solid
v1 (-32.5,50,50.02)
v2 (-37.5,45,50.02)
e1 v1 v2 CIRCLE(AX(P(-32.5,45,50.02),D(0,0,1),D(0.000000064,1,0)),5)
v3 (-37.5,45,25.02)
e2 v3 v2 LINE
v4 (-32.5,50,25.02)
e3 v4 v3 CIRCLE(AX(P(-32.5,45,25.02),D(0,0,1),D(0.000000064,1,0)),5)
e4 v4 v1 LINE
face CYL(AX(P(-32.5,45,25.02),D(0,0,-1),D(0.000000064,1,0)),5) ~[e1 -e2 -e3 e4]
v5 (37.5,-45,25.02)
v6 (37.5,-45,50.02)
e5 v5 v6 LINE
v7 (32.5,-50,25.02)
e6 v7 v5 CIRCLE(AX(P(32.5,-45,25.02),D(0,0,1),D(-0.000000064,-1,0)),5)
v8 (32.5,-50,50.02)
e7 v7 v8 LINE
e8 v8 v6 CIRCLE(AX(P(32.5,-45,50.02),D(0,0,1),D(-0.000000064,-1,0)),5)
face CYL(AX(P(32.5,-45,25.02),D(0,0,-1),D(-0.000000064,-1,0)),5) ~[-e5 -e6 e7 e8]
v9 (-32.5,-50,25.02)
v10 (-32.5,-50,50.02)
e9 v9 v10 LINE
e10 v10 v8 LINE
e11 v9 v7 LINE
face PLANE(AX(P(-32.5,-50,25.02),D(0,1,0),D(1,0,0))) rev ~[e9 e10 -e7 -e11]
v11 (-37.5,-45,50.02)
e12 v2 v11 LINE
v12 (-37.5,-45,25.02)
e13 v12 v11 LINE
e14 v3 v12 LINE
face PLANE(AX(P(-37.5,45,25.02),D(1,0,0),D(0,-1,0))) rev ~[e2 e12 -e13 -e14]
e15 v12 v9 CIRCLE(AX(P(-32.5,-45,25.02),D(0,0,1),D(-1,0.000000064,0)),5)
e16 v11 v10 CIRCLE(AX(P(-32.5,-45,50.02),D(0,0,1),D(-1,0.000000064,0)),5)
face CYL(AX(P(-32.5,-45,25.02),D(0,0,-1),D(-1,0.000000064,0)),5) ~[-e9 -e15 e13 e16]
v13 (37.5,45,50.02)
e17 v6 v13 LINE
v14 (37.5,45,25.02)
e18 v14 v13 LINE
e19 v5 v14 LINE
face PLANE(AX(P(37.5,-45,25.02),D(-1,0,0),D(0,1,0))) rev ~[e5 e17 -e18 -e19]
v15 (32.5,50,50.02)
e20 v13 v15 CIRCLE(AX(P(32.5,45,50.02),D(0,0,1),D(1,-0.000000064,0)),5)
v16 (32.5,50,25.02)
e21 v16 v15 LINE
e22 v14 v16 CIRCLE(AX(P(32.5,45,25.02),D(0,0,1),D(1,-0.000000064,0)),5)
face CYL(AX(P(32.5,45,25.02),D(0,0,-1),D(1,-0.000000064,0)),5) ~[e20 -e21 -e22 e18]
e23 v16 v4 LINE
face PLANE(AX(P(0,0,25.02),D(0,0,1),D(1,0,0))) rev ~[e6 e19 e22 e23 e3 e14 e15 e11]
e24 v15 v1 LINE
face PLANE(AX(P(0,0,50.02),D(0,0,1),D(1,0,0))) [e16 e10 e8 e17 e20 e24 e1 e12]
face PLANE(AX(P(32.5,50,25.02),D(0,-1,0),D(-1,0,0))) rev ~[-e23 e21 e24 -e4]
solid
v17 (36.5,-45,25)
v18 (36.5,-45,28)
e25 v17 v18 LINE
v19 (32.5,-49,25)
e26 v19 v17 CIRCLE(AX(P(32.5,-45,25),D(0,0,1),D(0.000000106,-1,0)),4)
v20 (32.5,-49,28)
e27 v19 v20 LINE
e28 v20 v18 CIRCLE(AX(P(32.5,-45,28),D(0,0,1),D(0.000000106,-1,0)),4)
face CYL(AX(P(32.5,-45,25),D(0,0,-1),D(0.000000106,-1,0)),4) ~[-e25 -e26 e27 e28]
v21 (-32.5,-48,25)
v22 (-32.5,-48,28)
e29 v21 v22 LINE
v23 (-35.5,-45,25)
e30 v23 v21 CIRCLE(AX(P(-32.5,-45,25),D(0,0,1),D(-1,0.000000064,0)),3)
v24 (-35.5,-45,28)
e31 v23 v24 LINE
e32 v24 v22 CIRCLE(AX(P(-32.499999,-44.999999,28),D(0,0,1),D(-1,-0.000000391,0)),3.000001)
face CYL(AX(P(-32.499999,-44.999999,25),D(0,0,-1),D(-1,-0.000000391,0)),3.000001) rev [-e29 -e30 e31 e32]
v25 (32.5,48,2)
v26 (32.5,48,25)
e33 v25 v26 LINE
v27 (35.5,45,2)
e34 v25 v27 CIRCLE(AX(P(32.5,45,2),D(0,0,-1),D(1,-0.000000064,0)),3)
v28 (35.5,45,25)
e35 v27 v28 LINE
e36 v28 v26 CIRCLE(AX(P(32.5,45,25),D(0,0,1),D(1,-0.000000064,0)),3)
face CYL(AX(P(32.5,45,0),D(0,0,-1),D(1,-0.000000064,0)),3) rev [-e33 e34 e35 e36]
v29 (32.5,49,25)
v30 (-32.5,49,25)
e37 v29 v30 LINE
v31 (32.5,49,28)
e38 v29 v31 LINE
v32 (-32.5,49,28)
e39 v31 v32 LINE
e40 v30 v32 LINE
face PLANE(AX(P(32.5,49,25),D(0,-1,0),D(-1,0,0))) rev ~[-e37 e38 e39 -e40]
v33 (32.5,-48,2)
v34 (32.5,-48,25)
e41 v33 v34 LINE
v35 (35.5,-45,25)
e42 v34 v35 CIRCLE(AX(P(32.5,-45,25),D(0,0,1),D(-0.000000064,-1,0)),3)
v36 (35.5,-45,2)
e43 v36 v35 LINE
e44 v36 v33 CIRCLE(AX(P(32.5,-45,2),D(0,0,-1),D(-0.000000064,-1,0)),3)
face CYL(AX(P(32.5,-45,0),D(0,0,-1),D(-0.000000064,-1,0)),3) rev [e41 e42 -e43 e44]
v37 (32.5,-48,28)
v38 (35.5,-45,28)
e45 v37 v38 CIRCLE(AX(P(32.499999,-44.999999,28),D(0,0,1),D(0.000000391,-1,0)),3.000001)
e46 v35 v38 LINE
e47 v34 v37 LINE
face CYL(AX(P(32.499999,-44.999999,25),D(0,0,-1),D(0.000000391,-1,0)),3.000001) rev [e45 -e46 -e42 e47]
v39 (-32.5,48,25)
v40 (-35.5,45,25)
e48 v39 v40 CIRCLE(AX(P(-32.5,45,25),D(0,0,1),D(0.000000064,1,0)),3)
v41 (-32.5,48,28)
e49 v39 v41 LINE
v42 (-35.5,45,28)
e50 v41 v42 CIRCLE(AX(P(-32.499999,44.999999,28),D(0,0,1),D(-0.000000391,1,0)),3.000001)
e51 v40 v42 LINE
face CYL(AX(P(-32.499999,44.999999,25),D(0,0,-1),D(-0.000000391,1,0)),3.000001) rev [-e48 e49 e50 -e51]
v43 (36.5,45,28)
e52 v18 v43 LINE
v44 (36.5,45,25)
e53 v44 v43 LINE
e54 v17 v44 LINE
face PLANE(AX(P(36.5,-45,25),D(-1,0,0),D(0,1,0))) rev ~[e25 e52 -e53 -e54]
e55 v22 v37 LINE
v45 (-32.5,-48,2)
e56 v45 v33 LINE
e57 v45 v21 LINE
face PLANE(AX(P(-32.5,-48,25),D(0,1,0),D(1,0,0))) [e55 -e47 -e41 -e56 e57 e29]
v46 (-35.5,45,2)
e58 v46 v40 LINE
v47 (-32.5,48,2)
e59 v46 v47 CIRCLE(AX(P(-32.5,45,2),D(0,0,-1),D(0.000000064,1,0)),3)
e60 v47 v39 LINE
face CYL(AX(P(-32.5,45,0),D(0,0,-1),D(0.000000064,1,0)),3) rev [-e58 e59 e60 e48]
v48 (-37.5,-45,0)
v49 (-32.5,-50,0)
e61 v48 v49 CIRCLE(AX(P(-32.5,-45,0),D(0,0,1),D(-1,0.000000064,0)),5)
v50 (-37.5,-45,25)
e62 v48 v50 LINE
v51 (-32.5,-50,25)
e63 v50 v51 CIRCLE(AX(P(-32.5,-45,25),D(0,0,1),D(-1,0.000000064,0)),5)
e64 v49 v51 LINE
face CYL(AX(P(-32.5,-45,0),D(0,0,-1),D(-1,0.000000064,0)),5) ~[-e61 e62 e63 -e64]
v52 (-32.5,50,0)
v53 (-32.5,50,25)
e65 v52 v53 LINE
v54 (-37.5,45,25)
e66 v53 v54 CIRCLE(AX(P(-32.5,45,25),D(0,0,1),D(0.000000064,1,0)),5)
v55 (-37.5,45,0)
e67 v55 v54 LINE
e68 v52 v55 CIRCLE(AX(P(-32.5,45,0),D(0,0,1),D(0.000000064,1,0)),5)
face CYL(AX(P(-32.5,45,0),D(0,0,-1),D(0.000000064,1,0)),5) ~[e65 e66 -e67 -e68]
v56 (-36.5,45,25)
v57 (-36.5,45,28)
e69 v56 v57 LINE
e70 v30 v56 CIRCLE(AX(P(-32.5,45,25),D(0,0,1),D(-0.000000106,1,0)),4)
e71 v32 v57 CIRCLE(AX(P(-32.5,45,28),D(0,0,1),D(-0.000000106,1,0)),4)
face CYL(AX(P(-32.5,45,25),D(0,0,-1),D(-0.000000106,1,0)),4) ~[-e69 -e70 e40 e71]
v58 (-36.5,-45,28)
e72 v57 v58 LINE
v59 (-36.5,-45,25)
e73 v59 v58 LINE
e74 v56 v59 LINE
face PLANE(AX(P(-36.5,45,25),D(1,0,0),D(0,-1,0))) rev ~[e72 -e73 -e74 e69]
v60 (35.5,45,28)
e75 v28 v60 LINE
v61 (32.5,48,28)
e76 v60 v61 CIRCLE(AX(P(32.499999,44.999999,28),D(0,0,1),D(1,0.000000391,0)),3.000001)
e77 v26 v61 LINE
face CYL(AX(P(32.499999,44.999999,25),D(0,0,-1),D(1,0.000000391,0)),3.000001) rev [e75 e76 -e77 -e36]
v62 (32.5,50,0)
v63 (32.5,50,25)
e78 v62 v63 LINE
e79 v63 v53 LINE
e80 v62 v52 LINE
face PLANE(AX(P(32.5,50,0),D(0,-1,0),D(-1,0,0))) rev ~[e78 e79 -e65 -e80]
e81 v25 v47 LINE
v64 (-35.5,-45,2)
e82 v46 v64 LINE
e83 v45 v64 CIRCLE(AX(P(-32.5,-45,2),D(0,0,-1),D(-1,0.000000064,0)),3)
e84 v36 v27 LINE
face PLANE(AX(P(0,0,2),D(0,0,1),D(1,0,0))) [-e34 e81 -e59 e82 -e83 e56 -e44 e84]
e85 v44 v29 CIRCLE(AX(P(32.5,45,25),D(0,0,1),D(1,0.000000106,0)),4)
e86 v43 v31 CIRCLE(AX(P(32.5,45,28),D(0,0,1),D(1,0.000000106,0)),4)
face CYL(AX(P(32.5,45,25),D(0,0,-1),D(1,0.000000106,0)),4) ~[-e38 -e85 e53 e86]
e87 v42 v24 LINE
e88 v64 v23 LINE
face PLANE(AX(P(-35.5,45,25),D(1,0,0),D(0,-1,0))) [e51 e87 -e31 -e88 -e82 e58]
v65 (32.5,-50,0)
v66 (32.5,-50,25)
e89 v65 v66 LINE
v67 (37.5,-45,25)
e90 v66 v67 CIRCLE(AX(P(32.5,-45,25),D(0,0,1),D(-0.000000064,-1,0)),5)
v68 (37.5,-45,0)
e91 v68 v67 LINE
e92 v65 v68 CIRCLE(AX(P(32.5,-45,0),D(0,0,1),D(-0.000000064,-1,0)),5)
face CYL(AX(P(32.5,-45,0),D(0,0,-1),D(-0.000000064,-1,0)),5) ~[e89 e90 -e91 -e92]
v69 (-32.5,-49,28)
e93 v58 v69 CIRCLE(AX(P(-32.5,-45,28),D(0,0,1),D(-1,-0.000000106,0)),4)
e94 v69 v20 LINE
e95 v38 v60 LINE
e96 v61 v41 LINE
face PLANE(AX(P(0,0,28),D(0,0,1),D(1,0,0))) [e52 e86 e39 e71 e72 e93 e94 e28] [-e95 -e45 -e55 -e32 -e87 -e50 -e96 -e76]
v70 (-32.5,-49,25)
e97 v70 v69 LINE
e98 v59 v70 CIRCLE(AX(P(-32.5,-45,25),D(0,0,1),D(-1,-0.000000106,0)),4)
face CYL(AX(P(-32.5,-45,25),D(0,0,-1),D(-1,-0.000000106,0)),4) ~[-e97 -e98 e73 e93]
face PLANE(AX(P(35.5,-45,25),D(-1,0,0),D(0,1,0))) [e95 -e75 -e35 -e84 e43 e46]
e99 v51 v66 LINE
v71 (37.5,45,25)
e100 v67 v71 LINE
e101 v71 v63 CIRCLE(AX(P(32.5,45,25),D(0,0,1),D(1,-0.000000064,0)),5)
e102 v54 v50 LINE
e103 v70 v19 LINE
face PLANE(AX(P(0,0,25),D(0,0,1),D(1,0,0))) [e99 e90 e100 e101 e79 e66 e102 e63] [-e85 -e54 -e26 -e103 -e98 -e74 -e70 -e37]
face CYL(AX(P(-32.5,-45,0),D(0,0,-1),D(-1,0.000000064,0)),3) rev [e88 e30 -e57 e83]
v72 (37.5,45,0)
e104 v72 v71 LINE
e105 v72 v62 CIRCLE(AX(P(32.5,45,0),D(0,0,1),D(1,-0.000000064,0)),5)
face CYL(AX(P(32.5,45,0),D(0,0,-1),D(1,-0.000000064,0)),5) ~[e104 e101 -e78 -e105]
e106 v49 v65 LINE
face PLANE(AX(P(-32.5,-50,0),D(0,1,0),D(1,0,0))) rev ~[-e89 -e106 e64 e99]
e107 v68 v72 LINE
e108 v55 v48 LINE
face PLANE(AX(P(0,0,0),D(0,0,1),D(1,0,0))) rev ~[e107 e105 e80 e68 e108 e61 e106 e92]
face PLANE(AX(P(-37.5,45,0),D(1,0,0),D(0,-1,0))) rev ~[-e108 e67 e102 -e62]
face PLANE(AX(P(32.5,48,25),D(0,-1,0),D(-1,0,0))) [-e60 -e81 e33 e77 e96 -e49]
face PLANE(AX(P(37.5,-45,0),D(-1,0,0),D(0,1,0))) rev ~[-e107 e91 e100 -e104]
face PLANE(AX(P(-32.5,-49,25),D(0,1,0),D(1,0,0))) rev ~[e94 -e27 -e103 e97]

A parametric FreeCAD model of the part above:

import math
import FreeCAD as App
import Part
import Sketcher

V = App.Vector
Q = App.Units.Quantity


def faces_at(feature, points):
    """Names of the faces that lie closest to the given points."""
    faces = feature.Shape.Faces
    near = lambda p: min(range(len(faces)), key=lambda i: faces[i].distToShape(Part.Vertex(*p))[0])
    return sorted({f"Face{near(p) + 1}" for p in points})

doc = App.newDocument("Part")
body = doc.addObject("PartDesign::Body", "Body")

# Sketch on XY plane
sketch1 = body.newObject("Sketcher::SketchObject", "Sketch")
sketch1.AttachmentSupport = (doc.getObject("XY_Plane"), [""])
sketch1.MapMode = "FlatFace"
sketch1.addGeometry(Part.LineSegment(V(-37.5, 45, 0), V(-37.5, -45, 0)), False)
sketch1.addGeometry(Part.ArcOfCircle(Part.Circle(V(-32.5, -45, 0), V(0, 0, 1), 5), math.radians(180), math.radians(270)), False)
sketch1.addGeometry(Part.LineSegment(V(-32.5, -50, 0), V(32.5, -50, 0)), False)
sketch1.addGeometry(Part.ArcOfCircle(Part.Circle(V(32.5, -45, 0), V(0, 0, 1), 5), math.radians(-90), math.radians(0)), False)
sketch1.addGeometry(Part.LineSegment(V(37.5, -45, 0), V(37.5, 45, 0)), False)
sketch1.addGeometry(Part.ArcOfCircle(Part.Circle(V(32.5, 45, 0), V(0, 0, 1), 5), math.radians(0), math.radians(90)), False)
sketch1.addGeometry(Part.LineSegment(V(32.5, 50, 0), V(-32.5, 50, 0)), False)
sketch1.addGeometry(Part.ArcOfCircle(Part.Circle(V(-32.5, 45, 0), V(0, 0, 1), 5), math.radians(90), math.radians(180)), False)
sketch1.addConstraint(Sketcher.Constraint("Tangent", 0, 2, 1, 1))
sketch1.addConstraint(Sketcher.Constraint("Tangent", 1, 2, 2, 1))
sketch1.addConstraint(Sketcher.Constraint("Tangent", 2, 2, 3, 1))
sketch1.addConstraint(Sketcher.Constraint("Tangent", 3, 2, 4, 1))
sketch1.addConstraint(Sketcher.Constraint("Tangent", 4, 2, 5, 1))
sketch1.addConstraint(Sketcher.Constraint("Tangent", 5, 2, 6, 1))
sketch1.addConstraint(Sketcher.Constraint("Tangent", 6, 2, 7, 1))
sketch1.addConstraint(Sketcher.Constraint("Tangent", 7, 2, 0, 1))
sketch1.addConstraint(Sketcher.Constraint("Vertical", 0))
sketch1.addConstraint(Sketcher.Constraint("Horizontal", 2))
sketch1.addConstraint(Sketcher.Constraint("Vertical", 4))
sketch1.addConstraint(Sketcher.Constraint("Horizontal", 6))
sketch1.addConstraint(Sketcher.Constraint("Equal", 1, 3))
sketch1.addConstraint(Sketcher.Constraint("Equal", 3, 5))
sketch1.addConstraint(Sketcher.Constraint("Equal", 5, 7))
sketch1.addConstraint(Sketcher.Constraint("Symmetric", 1, 3, 5, 3, -1, 1))
sketch1.addConstraint(Sketcher.Constraint("Radius", 1, Q("5 mm")))
sketch1.addConstraint(Sketcher.Constraint("DistanceX", 2, 1, 2, 2, Q("65 mm")))
sketch1.addConstraint(Sketcher.Constraint("DistanceY", 0, 2, 0, 1, Q("90 mm")))
pad1 = body.newObject("PartDesign::Pad", "Pad")
pad1.Profile = sketch1
pad1.Length = 25
doc.recompute()

thickness = body.newObject("PartDesign::Thickness", "Thickness")
thickness.Base = (pad1, faces_at(pad1, [(0, 0, 25)]))
thickness.Value = 2
thickness.Reversed = True
thickness.Join = "Arc"

# Sketch on XY plane
sketch2 = body.newObject("Sketcher::SketchObject", "Sketch001")
sketch2.AttachmentSupport = (doc.getObject("XY_Plane"), [""])
sketch2.MapMode = "FlatFace"
sketch2.AttachmentOffset = App.Placement(V(0, 0, 25), App.Rotation())
sketch2.addGeometry(Part.LineSegment(V(-36.5, 45, 0), V(-36.5, -45, 0)), False)
sketch2.addGeometry(Part.ArcOfCircle(Part.Circle(V(-32.5, -45, 0), V(0, 0, 1), 4), math.radians(-180), math.radians(-90)), False)
sketch2.addGeometry(Part.LineSegment(V(-32.5, -49, 0), V(32.5, -49, 0)), False)
sketch2.addGeometry(Part.ArcOfCircle(Part.Circle(V(32.5, -45, 0), V(0, 0, 1), 4), math.radians(-90), math.radians(0)), False)
sketch2.addGeometry(Part.LineSegment(V(36.5, -45, 0), V(36.5, 45, 0)), False)
sketch2.addGeometry(Part.ArcOfCircle(Part.Circle(V(32.5, 45, 0), V(0, 0, 1), 4), math.radians(0), math.radians(90)), False)
sketch2.addGeometry(Part.LineSegment(V(32.5, 49, 0), V(-32.5, 49, 0)), False)
sketch2.addGeometry(Part.ArcOfCircle(Part.Circle(V(-32.5, 45, 0), V(0, 0, 1), 4), math.radians(90), math.radians(180)), False)
sketch2.addGeometry(Part.LineSegment(V(-35.5, -45, 0), V(-35.5, 45, 0)), False)
sketch2.addGeometry(Part.ArcOfCircle(Part.Circle(V(-32.5, 45, 0), V(0, 0, 1), 3), math.radians(90), math.radians(180)), False)
sketch2.addGeometry(Part.LineSegment(V(-32.5, 48, 0), V(32.5, 48, 0)), False)
sketch2.addGeometry(Part.ArcOfCircle(Part.Circle(V(32.5, 45, 0), V(0, 0, 1), 3), math.radians(0), math.radians(90)), False)
sketch2.addGeometry(Part.LineSegment(V(35.5, 45, 0), V(35.5, -45, 0)), False)
sketch2.addGeometry(Part.ArcOfCircle(Part.Circle(V(32.5, -45, 0), V(0, 0, 1), 3), math.radians(-90), math.radians(0)), False)
sketch2.addGeometry(Part.LineSegment(V(32.5, -48, 0), V(-32.5, -48, 0)), False)
sketch2.addGeometry(Part.ArcOfCircle(Part.Circle(V(-32.5, -45, 0), V(0, 0, 1), 3), math.radians(-180), math.radians(-90)), False)
sketch2.addConstraint(Sketcher.Constraint("Tangent", 0, 2, 1, 1))
sketch2.addConstraint(Sketcher.Constraint("Tangent", 1, 2, 2, 1))
sketch2.addConstraint(Sketcher.Constraint("Tangent", 2, 2, 3, 1))
sketch2.addConstraint(Sketcher.Constraint("Tangent", 3, 2, 4, 1))
sketch2.addConstraint(Sketcher.Constraint("Tangent", 4, 2, 5, 1))
sketch2.addConstraint(Sketcher.Constraint("Tangent", 5, 2, 6, 1))
sketch2.addConstraint(Sketcher.Constraint("Tangent", 6, 2, 7, 1))
sketch2.addConstraint(Sketcher.Constraint("Tangent", 7, 2, 0, 1))
sketch2.addConstraint(Sketcher.Constraint("Tangent", 8, 2, 9, 2))
sketch2.addConstraint(Sketcher.Constraint("Tangent", 9, 1, 10, 1))
sketch2.addConstraint(Sketcher.Constraint("Tangent", 10, 2, 11, 2))
sketch2.addConstraint(Sketcher.Constraint("Tangent", 11, 1, 12, 1))
sketch2.addConstraint(Sketcher.Constraint("Tangent", 12, 2, 13, 2))
sketch2.addConstraint(Sketcher.Constraint("Tangent", 13, 1, 14, 1))
sketch2.addConstraint(Sketcher.Constraint("Tangent", 14, 2, 15, 2))
sketch2.addConstraint(Sketcher.Constraint("Tangent", 15, 1, 8, 1))
sketch2.addConstraint(Sketcher.Constraint("Vertical", 0))
sketch2.addConstraint(Sketcher.Constraint("Horizontal", 2))
sketch2.addConstraint(Sketcher.Constraint("Vertical", 4))
sketch2.addConstraint(Sketcher.Constraint("Horizontal", 6))
sketch2.addConstraint(Sketcher.Constraint("Vertical", 8))
sketch2.addConstraint(Sketcher.Constraint("Horizontal", 10))
sketch2.addConstraint(Sketcher.Constraint("Vertical", 12))
sketch2.addConstraint(Sketcher.Constraint("Horizontal", 14))
sketch2.addConstraint(Sketcher.Constraint("Coincident", 9, 3, 7, 3))
sketch2.addConstraint(Sketcher.Constraint("Coincident", 11, 3, 5, 3))
sketch2.addConstraint(Sketcher.Constraint("Coincident", 13, 3, 3, 3))
sketch2.addConstraint(Sketcher.Constraint("Equal", 1, 3))
sketch2.addConstraint(Sketcher.Constraint("Equal", 3, 5))
sketch2.addConstraint(Sketcher.Constraint("Equal", 5, 7))
sketch2.addConstraint(Sketcher.Constraint("Equal", 13, 15))
sketch2.addConstraint(Sketcher.Constraint("Symmetric", 1, 3, 5, 3, -1, 1))
sketch2.addConstraint(Sketcher.Constraint("Radius", 1, Q("4 mm")))
sketch2.addConstraint(Sketcher.Constraint("Radius", 9, Q("3.000001 mm")))
sketch2.addConstraint(Sketcher.Constraint("DistanceX", 2, 1, 2, 2, Q("65 mm")))
sketch2.addConstraint(Sketcher.Constraint("DistanceY", 0, 2, 0, 1, Q("90 mm")))
pad2 = body.newObject("PartDesign::Pad", "Pad001")
pad2.Profile = sketch2
pad2.Length = 3
body2 = doc.addObject("PartDesign::Body", "Body001")

# Sketch on XY plane
sketch3 = body2.newObject("Sketcher::SketchObject", "Sketch002")
sketch3.AttachmentSupport = (doc.getObject("XY_Plane001"), [""])
sketch3.MapMode = "FlatFace"
sketch3.AttachmentOffset = App.Placement(V(0, 0, 25.02), App.Rotation())
sketch3.addGeometry(Part.LineSegment(V(-37.5, 45, 0), V(-37.5, -45, 0)), False)
sketch3.addGeometry(Part.ArcOfCircle(Part.Circle(V(-32.5, -45, 0), V(0, 0, 1), 5), math.radians(180), math.radians(270)), False)
sketch3.addGeometry(Part.LineSegment(V(-32.5, -50, 0), V(32.5, -50, 0)), False)
sketch3.addGeometry(Part.ArcOfCircle(Part.Circle(V(32.5, -45, 0), V(0, 0, 1), 5), math.radians(-90), math.radians(0)), False)
sketch3.addGeometry(Part.LineSegment(V(37.5, -45, 0), V(37.5, 45, 0)), False)
sketch3.addGeometry(Part.ArcOfCircle(Part.Circle(V(32.5, 45, 0), V(0, 0, 1), 5), math.radians(0), math.radians(90)), False)
sketch3.addGeometry(Part.LineSegment(V(32.5, 50, 0), V(-32.5, 50, 0)), False)
sketch3.addGeometry(Part.ArcOfCircle(Part.Circle(V(-32.5, 45, 0), V(0, 0, 1), 5), math.radians(90), math.radians(180)), False)
sketch3.addConstraint(Sketcher.Constraint("Tangent", 0, 2, 1, 1))
sketch3.addConstraint(Sketcher.Constraint("Tangent", 1, 2, 2, 1))
sketch3.addConstraint(Sketcher.Constraint("Tangent", 2, 2, 3, 1))
sketch3.addConstraint(Sketcher.Constraint("Tangent", 3, 2, 4, 1))
sketch3.addConstraint(Sketcher.Constraint("Tangent", 4, 2, 5, 1))
sketch3.addConstraint(Sketcher.Constraint("Tangent", 5, 2, 6, 1))
sketch3.addConstraint(Sketcher.Constraint("Tangent", 6, 2, 7, 1))
sketch3.addConstraint(Sketcher.Constraint("Tangent", 7, 2, 0, 1))
sketch3.addConstraint(Sketcher.Constraint("Vertical", 0))
sketch3.addConstraint(Sketcher.Constraint("Horizontal", 2))
sketch3.addConstraint(Sketcher.Constraint("Vertical", 4))
sketch3.addConstraint(Sketcher.Constraint("Horizontal", 6))
sketch3.addConstraint(Sketcher.Constraint("Equal", 1, 3))
sketch3.addConstraint(Sketcher.Constraint("Equal", 3, 5))
sketch3.addConstraint(Sketcher.Constraint("Equal", 5, 7))
sketch3.addConstraint(Sketcher.Constraint("Symmetric", 1, 3, 5, 3, -1, 1))
sketch3.addConstraint(Sketcher.Constraint("Radius", 1, Q("5 mm")))
sketch3.addConstraint(Sketcher.Constraint("DistanceX", 2, 1, 2, 2, Q("65 mm")))
sketch3.addConstraint(Sketcher.Constraint("DistanceY", 0, 2, 0, 1, Q("90 mm")))
pad3 = body2.newObject("PartDesign::Pad", "Pad002")
pad3.Profile = sketch3
pad3.Length = 25

# Sketch on XY plane
sketch4 = body2.newObject("Sketcher::SketchObject", "Sketch003")
sketch4.AttachmentSupport = (doc.getObject("XY_Plane001"), [""])
sketch4.MapMode = "FlatFace"
sketch4.addGeometry(Part.LineSegment(V(-36.6, -45, 0), V(-36.6, 45, 0)), False)
sketch4.addGeometry(Part.ArcOfCircle(Part.Circle(V(-32.5, 45, 0), V(0, 0, 1), 4.1), math.radians(90), math.radians(180)), False)
sketch4.addGeometry(Part.LineSegment(V(-32.5, 49.1, 0), V(32.5, 49.1, 0)), False)
sketch4.addGeometry(Part.ArcOfCircle(Part.Circle(V(32.5, 45, 0), V(0, 0, 1), 4.1), math.radians(0), math.radians(90)), False)
sketch4.addGeometry(Part.LineSegment(V(36.6, 45, 0), V(36.6, -45, 0)), False)
sketch4.addGeometry(Part.ArcOfCircle(Part.Circle(V(32.5, -45, 0), V(0, 0, 1), 4.1), math.radians(-90), math.radians(0)), False)
sketch4.addGeometry(Part.LineSegment(V(32.5, -49.1, 0), V(-32.5, -49.1, 0)), False)
sketch4.addGeometry(Part.ArcOfCircle(Part.Circle(V(-32.5, -45, 0), V(0, 0, 1), 4.1), math.radians(180), math.radians(270)), False)
sketch4.addGeometry(Part.LineSegment(V(-35.4, 45, 0), V(-35.4, -45, 0)), False)
sketch4.addGeometry(Part.ArcOfCircle(Part.Circle(V(-32.5, -45, 0), V(0, 0, 1), 2.9), math.radians(180), math.radians(270)), False)
sketch4.addGeometry(Part.LineSegment(V(-32.5, -47.9, 0), V(32.5, -47.9, 0)), False)
sketch4.addGeometry(Part.ArcOfCircle(Part.Circle(V(32.5, -45, 0), V(0, 0, 1), 2.9), math.radians(-90), math.radians(0)), False)
sketch4.addGeometry(Part.LineSegment(V(35.4, -45, 0), V(35.4, 45, 0)), False)
sketch4.addGeometry(Part.ArcOfCircle(Part.Circle(V(32.5, 45, 0), V(0, 0, 1), 2.9), math.radians(0), math.radians(90)), False)
sketch4.addGeometry(Part.LineSegment(V(32.5, 47.9, 0), V(-32.5, 47.9, 0)), False)
sketch4.addGeometry(Part.ArcOfCircle(Part.Circle(V(-32.5, 45, 0), V(0, 0, 1), 2.9), math.radians(90), math.radians(180)), False)
sketch4.addConstraint(Sketcher.Constraint("Tangent", 0, 2, 1, 2))
sketch4.addConstraint(Sketcher.Constraint("Tangent", 1, 1, 2, 1))
sketch4.addConstraint(Sketcher.Constraint("Tangent", 2, 2, 3, 2))
sketch4.addConstraint(Sketcher.Constraint("Tangent", 3, 1, 4, 1))
sketch4.addConstraint(Sketcher.Constraint("Tangent", 4, 2, 5, 2))
sketch4.addConstraint(Sketcher.Constraint("Tangent", 5, 1, 6, 1))
sketch4.addConstraint(Sketcher.Constraint("Tangent", 6, 2, 7, 2))
sketch4.addConstraint(Sketcher.Constraint("Tangent", 7, 1, 0, 1))
sketch4.addConstraint(Sketcher.Constraint("Tangent", 8, 2, 9, 1))
sketch4.addConstraint(Sketcher.Constraint("Tangent", 9, 2, 10, 1))
sketch4.addConstraint(Sketcher.Constraint("Tangent", 10, 2, 11, 1))
sketch4.addConstraint(Sketcher.Constraint("Tangent", 11, 2, 12, 1))
sketch4.addConstraint(Sketcher.Constraint("Tangent", 12, 2, 13, 1))
sketch4.addConstraint(Sketcher.Constraint("Tangent", 13, 2, 14, 1))
sketch4.addConstraint(Sketcher.Constraint("Tangent", 14, 2, 15, 1))
sketch4.addConstraint(Sketcher.Constraint("Tangent", 15, 2, 8, 1))
sketch4.addConstraint(Sketcher.Constraint("Vertical", 0))
sketch4.addConstraint(Sketcher.Constraint("Horizontal", 2))
sketch4.addConstraint(Sketcher.Constraint("Vertical", 4))
sketch4.addConstraint(Sketcher.Constraint("Horizontal", 6))
sketch4.addConstraint(Sketcher.Constraint("Vertical", 8))
sketch4.addConstraint(Sketcher.Constraint("Horizontal", 10))
sketch4.addConstraint(Sketcher.Constraint("Vertical", 12))
sketch4.addConstraint(Sketcher.Constraint("Horizontal", 14))
sketch4.addConstraint(Sketcher.Constraint("Coincident", 9, 3, 7, 3))
sketch4.addConstraint(Sketcher.Constraint("Coincident", 11, 3, 5, 3))
sketch4.addConstraint(Sketcher.Constraint("Coincident", 13, 3, 3, 3))
sketch4.addConstraint(Sketcher.Constraint("Equal", 1, 3))
sketch4.addConstraint(Sketcher.Constraint("Equal", 3, 5))
sketch4.addConstraint(Sketcher.Constraint("Equal", 5, 7))
sketch4.addConstraint(Sketcher.Constraint("Equal", 13, 15))
sketch4.addConstraint(Sketcher.Constraint("Symmetric", 1, 3, 5, 3, -1, 1))
sketch4.addConstraint(Sketcher.Constraint("Radius", 1, Q("4.099999 mm")))
sketch4.addConstraint(Sketcher.Constraint("Radius", 9, Q("2.899999 mm")))
sketch4.addConstraint(Sketcher.Constraint("DistanceX", 2, 1, 2, 2, Q("65 mm")))
sketch4.addConstraint(Sketcher.Constraint("DistanceY", 0, 1, 0, 2, Q("90 mm")))
pocket1 = body2.newObject("PartDesign::Pocket", "Pocket")
pocket1.Profile = sketch4
pocket1.Length = 3
pocket1.Reversed = True

doc.recompute()
